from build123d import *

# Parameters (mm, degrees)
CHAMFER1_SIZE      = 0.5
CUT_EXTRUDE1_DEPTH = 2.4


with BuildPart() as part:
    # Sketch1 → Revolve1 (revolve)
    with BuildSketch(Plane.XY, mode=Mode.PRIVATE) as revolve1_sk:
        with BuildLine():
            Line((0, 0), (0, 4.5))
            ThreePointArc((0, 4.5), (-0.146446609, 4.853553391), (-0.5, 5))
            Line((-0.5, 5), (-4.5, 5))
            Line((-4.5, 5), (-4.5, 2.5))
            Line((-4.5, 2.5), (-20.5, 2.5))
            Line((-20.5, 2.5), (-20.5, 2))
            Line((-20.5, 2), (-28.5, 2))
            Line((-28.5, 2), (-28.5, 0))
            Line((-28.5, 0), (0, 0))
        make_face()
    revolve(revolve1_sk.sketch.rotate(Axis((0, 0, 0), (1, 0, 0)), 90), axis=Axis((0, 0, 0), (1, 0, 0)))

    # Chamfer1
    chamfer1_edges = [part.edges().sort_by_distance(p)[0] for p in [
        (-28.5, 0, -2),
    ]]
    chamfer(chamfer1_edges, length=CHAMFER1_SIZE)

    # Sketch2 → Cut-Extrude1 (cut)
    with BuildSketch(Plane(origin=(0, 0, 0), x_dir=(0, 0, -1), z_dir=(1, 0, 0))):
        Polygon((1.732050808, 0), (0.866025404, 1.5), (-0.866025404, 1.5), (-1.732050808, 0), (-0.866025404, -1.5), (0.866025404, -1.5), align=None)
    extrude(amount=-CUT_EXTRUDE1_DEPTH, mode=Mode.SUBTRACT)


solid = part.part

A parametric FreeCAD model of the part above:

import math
import FreeCAD as App
import Part
import Sketcher
Q = App.Units.Quantity


def edges_at(feature, points):
    """Names of the edges that pass closest to the given points."""
    edges = feature.Shape.Edges
    near = lambda p: min(range(len(edges)), key=lambda i: edges[i].distToShape(Part.Vertex(*p))[0])
    return sorted({f"Edge{near(p) + 1}" for p in points})


def add_polygon(sketch, points):
    """Adds a closed chain of lines whose ends are joined by coincident constraints."""
    first, n = sketch.GeometryCount, len(points)
    for a, b in zip(points, points[1:] + points[:1]):
        sketch.addGeometry(Part.LineSegment(App.Vector(*a, 0), App.Vector(*b, 0)), False)
    for i in range(n):
        sketch.addConstraint(Sketcher.Constraint("Coincident", first + i, 2, first + (i + 1) % n, 1))

doc = App.newDocument("Part")
body = doc.addObject("PartDesign::Body", "Body")

# Sketch on XY plane
sketch1 = body.newObject("Sketcher::SketchObject", "Sketch")
sketch1.AttachmentSupport = (doc.getObject("XY_Plane"), [""])
sketch1.MapMode = "FlatFace"
sketch1.addGeometry([
    Part.LineSegment(App.Vector(0, 0, 0), App.Vector(0, 4.5, 0)),  # 0
    Part.ArcOfCircle(Part.Circle(App.Vector(-0.5, 4.5, 0), App.Vector(0, 0, 1), 0.5), math.radians(0), math.radians(90)),  # 1
    Part.LineSegment(App.Vector(-0.5, 5, 0), App.Vector(-4.5, 5, 0)),  # 2
    Part.LineSegment(App.Vector(-4.5, 5, 0), App.Vector(-4.5, 2.5, 0)),  # 3
    Part.LineSegment(App.Vector(-4.5, 2.5, 0), App.Vector(-20.5, 2.5, 0)),  # 4
    Part.LineSegment(App.Vector(-20.5, 2.5, 0), App.Vector(-20.5, 2, 0)),  # 5
    Part.LineSegment(App.Vector(-20.5, 2, 0), App.Vector(-28.5, 2, 0)),  # 6
    Part.LineSegment(App.Vector(-28.5, 2, 0), App.Vector(-28.5, 0, 0)),  # 7
    Part.LineSegment(App.Vector(-28.5, 0, 0), App.Vector(0, 0, 0)),  # 8
], False)
sketch1.addConstraint([
    Sketcher.Constraint("Tangent", 0, 2, 1, 1),
    Sketcher.Constraint("Tangent", 1, 2, 2, 1),
    Sketcher.Constraint("Coincident", 2, 2, 3, 1),
    Sketcher.Constraint("Coincident", 3, 2, 4, 1),
    Sketcher.Constraint("Coincident", 4, 2, 5, 1),
    Sketcher.Constraint("Coincident", 5, 2, 6, 1),
    Sketcher.Constraint("Coincident", 6, 2, 7, 1),
    Sketcher.Constraint("Coincident", 7, 2, 8, 1),
    Sketcher.Constraint("Coincident", 8, 2, 0, 1),
    Sketcher.Constraint("Vertical", 0),
    Sketcher.Constraint("Horizontal", 2),
    Sketcher.Constraint("Vertical", 3),
    Sketcher.Constraint("Horizontal", 4),
    Sketcher.Constraint("Vertical", 5),
    Sketcher.Constraint("Horizontal", 6),
    Sketcher.Constraint("Vertical", 7),
    Sketcher.Constraint("Horizontal", 8),
    Sketcher.Constraint("Coincident", 8, 2, -1, 1),
    Sketcher.Constraint("Radius", 1, Q("0.5 mm")),
    Sketcher.Constraint("DistanceX", 2, 2, 2, 1, Q("4 mm")),
    Sketcher.Constraint("DistanceX", 4, 2, 4, 1, Q("16 mm")),
    Sketcher.Constraint("DistanceX", 6, 2, 6, 1, Q("8 mm")),
    Sketcher.Constraint("DistanceY", 7, 2, 7, 1, Q("2 mm")),
    Sketcher.Constraint("DistanceY", 0, 1, 0, 2, Q("4.5 mm")),
    Sketcher.Constraint("DistanceY", 3, 2, 3, 1, Q("2.5 mm")),
])
revolution = body.newObject("PartDesign::Revolution", "Revolution")
revolution.Profile = sketch1
revolution.ReferenceAxis = (sketch1, ["H_Axis"])
revolution.Angle = 360
doc.recompute()

chamfer = body.newObject("PartDesign::Chamfer", "Chamfer")
chamfer.Base = (revolution, edges_at(revolution, [(-28.5, 0, -2)]))
chamfer.Size = 0.5

# Sketch on YZ plane
sketch2 = body.newObject("Sketcher::SketchObject", "Sketch001")
sketch2.AttachmentSupport = (doc.getObject("YZ_Plane"), [""])
sketch2.MapMode = "FlatFace"
add_polygon(sketch2, [(0, -1.732051), (1.5, -0.866025), (1.5, 0.866025), (0, 1.732051), (-1.5, 0.866025), (-1.5, -0.866025)])  # lines 0-5
sketch2.addConstraint([
    Sketcher.Constraint("Vertical", 1),
    Sketcher.Constraint("Vertical", 4),
    Sketcher.Constraint("Symmetric", 0, 2, 3, 2, -1, 1),
    Sketcher.Constraint("Symmetric", 2, 2, 5, 2, -1, 1),
    Sketcher.Constraint("PointOnObject", 2, 2, -2),
    Sketcher.Constraint("Parallel", 2, 5),
    Sketcher.Constraint("Horizontal", 1, 2, 3, 2),
    Sketcher.Constraint("Angle", 0, Q("30 deg")),
    Sketcher.Constraint("DistanceX", 3, 2, 1, 2, Q("3 mm")),
    Sketcher.Constraint("DistanceY", 1, 1, 1, 2, Q("1.732051 mm")),
])
pocket1 = body.newObject("PartDesign::Pocket", "Pocket")
pocket1.Profile = sketch2
pocket1.Length = 2.4

doc.recompute()
